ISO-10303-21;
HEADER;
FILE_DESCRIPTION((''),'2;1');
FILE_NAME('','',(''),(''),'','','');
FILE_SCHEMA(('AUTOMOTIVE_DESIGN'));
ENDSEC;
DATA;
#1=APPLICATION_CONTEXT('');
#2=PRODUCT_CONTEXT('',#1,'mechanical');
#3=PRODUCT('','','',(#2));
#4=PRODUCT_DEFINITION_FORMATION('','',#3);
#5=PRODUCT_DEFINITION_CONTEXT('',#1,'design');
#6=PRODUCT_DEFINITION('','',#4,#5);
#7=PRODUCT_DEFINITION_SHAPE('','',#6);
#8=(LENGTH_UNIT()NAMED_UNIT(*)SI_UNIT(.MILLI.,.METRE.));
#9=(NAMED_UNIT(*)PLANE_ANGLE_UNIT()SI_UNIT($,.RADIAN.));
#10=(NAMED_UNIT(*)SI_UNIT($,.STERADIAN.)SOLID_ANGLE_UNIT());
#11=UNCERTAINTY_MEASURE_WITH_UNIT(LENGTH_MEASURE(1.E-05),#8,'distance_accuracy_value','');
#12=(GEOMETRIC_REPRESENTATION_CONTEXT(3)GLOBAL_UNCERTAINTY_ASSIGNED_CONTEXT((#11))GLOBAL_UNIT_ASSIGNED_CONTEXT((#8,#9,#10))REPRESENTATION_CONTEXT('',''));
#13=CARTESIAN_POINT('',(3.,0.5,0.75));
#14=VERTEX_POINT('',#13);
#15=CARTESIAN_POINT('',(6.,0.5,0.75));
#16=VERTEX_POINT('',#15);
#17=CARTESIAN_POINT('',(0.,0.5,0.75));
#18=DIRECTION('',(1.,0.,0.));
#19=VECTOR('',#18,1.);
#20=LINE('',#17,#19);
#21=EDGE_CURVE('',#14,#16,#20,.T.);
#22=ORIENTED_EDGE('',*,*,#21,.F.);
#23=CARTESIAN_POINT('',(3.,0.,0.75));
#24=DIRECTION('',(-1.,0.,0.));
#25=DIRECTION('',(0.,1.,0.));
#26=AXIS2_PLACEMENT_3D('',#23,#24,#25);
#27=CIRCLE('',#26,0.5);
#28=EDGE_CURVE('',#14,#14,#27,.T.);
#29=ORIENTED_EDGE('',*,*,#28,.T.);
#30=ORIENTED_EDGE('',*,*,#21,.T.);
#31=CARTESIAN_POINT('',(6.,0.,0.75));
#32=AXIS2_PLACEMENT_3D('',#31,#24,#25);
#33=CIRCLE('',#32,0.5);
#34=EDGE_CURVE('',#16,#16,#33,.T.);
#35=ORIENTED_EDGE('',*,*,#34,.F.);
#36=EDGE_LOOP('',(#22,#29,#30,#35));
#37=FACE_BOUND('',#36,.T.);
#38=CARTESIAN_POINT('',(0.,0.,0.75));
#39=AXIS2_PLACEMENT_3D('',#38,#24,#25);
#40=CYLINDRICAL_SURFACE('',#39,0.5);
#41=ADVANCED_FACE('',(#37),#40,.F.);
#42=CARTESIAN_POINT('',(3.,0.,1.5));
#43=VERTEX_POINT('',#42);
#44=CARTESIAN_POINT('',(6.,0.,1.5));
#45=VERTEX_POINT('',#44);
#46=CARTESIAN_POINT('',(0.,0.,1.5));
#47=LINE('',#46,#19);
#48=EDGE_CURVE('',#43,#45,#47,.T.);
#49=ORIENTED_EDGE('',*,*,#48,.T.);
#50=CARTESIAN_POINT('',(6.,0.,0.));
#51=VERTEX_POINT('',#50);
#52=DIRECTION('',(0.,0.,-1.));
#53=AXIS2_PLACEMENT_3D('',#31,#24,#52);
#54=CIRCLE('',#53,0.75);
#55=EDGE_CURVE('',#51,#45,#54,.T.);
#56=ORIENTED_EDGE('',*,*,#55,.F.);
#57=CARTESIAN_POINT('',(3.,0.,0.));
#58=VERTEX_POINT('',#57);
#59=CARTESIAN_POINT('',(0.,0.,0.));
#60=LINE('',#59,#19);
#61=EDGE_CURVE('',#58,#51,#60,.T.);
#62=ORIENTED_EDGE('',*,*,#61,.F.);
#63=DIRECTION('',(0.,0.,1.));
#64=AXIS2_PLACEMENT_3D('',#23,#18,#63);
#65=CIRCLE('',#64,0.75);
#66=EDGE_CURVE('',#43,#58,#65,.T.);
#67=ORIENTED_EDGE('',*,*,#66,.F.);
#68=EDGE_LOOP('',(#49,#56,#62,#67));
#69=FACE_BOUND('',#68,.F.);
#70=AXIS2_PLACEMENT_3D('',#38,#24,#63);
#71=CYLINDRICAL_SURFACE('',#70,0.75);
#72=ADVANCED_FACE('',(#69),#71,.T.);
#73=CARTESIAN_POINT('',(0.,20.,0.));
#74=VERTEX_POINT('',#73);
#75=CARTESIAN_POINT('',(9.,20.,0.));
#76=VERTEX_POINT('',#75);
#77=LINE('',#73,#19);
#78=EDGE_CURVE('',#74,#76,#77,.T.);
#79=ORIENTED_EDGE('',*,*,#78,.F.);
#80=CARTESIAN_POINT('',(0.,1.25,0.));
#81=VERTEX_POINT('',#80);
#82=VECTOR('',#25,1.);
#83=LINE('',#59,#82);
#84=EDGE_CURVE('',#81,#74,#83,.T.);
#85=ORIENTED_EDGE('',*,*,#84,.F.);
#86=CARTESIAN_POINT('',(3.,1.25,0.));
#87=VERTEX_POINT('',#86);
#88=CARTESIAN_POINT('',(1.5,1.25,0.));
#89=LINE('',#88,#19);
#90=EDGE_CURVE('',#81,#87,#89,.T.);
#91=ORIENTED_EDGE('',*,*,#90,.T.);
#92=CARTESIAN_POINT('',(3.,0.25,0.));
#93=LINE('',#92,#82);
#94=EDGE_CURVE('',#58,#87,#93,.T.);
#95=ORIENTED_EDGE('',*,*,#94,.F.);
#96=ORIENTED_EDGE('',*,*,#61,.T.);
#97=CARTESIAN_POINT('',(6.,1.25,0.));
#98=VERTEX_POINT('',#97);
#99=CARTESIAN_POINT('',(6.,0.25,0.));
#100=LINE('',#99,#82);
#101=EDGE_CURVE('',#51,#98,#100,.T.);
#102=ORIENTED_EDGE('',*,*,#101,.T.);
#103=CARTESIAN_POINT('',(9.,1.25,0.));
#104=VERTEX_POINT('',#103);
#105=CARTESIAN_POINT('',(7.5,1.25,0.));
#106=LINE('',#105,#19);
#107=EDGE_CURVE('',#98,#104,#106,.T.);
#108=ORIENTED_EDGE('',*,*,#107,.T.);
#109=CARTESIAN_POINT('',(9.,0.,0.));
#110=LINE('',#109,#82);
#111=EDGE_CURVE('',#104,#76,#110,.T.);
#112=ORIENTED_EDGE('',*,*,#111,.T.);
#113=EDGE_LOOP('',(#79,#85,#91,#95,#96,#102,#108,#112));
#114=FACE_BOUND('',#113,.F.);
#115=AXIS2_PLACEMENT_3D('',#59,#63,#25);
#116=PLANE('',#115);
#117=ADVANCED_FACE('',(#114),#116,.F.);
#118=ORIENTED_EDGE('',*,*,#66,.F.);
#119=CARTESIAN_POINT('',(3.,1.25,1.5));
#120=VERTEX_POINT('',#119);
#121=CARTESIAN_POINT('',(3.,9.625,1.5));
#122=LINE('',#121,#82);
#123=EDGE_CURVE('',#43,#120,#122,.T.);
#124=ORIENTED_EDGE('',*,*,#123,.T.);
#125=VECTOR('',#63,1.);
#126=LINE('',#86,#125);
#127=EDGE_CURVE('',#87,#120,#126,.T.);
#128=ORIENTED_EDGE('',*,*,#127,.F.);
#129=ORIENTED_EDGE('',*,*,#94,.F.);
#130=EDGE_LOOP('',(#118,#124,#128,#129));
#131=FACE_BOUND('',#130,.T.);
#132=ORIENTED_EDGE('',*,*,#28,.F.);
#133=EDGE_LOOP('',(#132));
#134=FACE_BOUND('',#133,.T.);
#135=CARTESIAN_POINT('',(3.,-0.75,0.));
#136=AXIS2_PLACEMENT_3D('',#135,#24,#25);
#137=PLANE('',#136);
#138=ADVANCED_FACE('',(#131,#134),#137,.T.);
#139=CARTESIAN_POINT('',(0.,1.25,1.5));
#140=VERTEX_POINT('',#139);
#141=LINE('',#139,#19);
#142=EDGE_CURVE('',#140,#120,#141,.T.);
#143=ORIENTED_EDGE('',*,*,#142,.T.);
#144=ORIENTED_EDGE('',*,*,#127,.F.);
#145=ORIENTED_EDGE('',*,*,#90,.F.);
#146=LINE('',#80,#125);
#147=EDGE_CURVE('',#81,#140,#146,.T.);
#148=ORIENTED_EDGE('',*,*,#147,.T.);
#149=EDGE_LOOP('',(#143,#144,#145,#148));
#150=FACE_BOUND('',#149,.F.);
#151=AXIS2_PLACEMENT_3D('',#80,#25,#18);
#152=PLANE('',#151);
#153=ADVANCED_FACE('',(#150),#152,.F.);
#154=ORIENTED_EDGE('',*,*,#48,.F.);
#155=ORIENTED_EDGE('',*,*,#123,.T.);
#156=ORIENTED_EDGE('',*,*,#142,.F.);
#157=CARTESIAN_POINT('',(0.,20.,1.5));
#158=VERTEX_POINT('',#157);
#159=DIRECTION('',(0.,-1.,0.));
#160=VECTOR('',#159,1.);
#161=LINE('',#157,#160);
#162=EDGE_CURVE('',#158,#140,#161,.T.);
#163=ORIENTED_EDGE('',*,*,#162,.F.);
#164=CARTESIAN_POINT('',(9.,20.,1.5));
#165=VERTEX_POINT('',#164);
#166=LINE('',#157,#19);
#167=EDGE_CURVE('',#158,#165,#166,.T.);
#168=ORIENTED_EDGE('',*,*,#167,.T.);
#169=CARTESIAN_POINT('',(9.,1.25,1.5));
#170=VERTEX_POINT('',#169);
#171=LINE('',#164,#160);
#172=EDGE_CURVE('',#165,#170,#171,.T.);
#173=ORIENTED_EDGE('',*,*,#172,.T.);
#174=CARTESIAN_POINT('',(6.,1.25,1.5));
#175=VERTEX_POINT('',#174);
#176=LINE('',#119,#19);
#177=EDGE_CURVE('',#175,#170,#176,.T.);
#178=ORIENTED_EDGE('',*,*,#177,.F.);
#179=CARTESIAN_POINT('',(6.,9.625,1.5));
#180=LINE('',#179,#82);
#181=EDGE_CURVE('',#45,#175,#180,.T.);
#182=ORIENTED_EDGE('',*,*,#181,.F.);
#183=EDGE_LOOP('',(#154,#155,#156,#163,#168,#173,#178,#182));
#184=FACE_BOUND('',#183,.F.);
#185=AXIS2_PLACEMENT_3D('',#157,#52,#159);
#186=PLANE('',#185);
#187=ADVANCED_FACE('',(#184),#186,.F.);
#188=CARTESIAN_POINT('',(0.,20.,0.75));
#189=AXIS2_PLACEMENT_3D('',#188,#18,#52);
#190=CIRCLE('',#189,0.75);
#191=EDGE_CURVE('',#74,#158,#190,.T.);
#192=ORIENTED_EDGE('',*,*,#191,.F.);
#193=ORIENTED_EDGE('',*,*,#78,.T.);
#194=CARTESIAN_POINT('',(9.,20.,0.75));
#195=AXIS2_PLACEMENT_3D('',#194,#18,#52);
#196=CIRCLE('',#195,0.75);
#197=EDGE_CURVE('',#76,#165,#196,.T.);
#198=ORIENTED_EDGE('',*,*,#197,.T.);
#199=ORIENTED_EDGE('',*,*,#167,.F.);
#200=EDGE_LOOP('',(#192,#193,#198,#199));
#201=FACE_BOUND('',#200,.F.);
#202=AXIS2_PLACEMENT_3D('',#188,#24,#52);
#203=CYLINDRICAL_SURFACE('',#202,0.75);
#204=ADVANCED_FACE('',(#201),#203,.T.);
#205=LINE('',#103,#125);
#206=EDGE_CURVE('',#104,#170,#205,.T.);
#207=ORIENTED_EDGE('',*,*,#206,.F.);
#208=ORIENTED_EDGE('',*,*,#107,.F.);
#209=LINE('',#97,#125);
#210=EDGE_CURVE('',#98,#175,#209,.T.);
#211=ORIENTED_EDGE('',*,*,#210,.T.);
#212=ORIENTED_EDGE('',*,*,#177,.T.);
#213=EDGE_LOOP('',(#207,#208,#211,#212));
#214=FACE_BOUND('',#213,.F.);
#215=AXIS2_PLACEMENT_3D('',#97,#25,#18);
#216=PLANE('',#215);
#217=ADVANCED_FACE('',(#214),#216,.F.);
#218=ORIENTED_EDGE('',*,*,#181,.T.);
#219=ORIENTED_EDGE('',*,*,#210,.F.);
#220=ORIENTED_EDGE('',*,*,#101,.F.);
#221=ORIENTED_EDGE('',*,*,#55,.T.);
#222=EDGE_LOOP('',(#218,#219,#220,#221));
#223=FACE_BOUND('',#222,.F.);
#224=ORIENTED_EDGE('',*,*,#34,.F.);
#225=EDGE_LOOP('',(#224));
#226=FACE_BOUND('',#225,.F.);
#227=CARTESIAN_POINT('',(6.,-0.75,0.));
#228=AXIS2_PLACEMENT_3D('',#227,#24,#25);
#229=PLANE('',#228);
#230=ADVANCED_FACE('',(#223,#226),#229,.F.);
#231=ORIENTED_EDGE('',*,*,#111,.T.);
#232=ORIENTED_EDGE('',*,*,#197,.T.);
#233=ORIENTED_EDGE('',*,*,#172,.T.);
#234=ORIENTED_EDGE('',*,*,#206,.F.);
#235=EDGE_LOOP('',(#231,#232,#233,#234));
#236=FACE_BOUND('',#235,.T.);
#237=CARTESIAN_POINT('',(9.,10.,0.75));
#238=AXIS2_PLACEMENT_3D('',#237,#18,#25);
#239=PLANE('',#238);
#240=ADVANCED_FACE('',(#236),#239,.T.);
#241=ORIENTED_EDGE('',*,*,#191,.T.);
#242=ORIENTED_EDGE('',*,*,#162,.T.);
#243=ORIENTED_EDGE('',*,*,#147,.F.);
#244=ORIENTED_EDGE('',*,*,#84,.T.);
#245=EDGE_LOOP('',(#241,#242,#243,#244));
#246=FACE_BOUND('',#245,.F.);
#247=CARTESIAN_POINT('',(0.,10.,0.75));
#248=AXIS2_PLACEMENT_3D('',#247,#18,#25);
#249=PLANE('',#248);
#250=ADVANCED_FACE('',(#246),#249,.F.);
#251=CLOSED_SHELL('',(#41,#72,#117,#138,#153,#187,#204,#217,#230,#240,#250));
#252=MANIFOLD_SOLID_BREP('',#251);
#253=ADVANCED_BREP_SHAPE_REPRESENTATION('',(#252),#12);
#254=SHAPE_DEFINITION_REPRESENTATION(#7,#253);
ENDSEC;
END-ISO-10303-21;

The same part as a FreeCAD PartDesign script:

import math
import FreeCAD as App
import Part
import Sketcher

V = App.Vector

doc = App.newDocument("Part")
params = doc.addObject("Spreadsheet::Sheet", "Params")
for row, (alias, value) in enumerate([
    ("sketch1_diameter", "1 mm"),
    ("sketch1_width", "20 mm"),
    ("sketch1_radius", "0.75 mm"),
    ("pad1_length", "9 mm"),
    ("sketch2_width", "3 mm"),
    ("sketch2_height", "2 mm"),
], start=1):
    params.set(f"A{row}", alias)
    params.set(f"B{row}", "=" + value)
    params.setAlias(f"B{row}", alias)

body = doc.addObject("PartDesign::Body", "Body")

# Sketch on YZ plane
sketch1 = body.newObject("Sketcher::SketchObject", "Sketch")
sketch1.AttachmentSupport = (doc.getObject("YZ_Plane"), [""])
sketch1.MapMode = "FlatFace"
sketch1.addGeometry(Part.ArcOfCircle(Part.Circle(V(0, 0.8, 0), V(0, 0, 1), 0.8), math.radians(90), math.radians(270)), False)
sketch1.addGeometry(Part.LineSegment(V(0, 0, 0), V(20, 0, 0)), False)
sketch1.addGeometry(Part.ArcOfCircle(Part.Circle(V(20, 0.8, 0), V(0, 0, 1), 0.8), math.radians(-90), math.radians(90)), False)
sketch1.addGeometry(Part.LineSegment(V(20, 1.5, 0), V(0, 1.5, 0)), False)
sketch1.addGeometry(Part.Circle(V(0, 0.8, 0), V(0, 0, 1), 0.5), False)
sketch1.addConstraint(Sketcher.Constraint("Tangent", 0, 2, 1, 1))
sketch1.addConstraint(Sketcher.Constraint("Tangent", 1, 2, 2, 1))
sketch1.addConstraint(Sketcher.Constraint("Tangent", 2, 2, 3, 1))
sketch1.addConstraint(Sketcher.Constraint("Tangent", 3, 2, 0, 1))
sketch1.addConstraint(Sketcher.Constraint("Horizontal", 1))
sketch1.addConstraint(Sketcher.Constraint("Horizontal", 3))
sketch1.addConstraint(Sketcher.Constraint("Coincident", 0, 2, -1, 1))
sketch1.addConstraint(Sketcher.Constraint("Coincident", 4, 3, 0, 3))
sketch1.addConstraint(Sketcher.Constraint("Diameter", 4, 1.0))
sketch1.addConstraint(Sketcher.Constraint("DistanceX", 1, 1, 1, 2, 20.0))
sketch1.addConstraint(Sketcher.Constraint("Radius", 0, 0.75))
sketch1.setExpression("Constraints[8]", "Params.sketch1_diameter")
sketch1.setExpression("Constraints[9]", "Params.sketch1_width")
sketch1.setExpression("Constraints[10]", "Params.sketch1_radius")
pad1 = body.newObject("PartDesign::Pad", "Pad")
pad1.Profile = sketch1
pad1.setExpression("Length", "Params.pad1_length")

# Sketch on XY plane
sketch2 = body.newObject("Sketcher::SketchObject", "Sketch001")
sketch2.AttachmentSupport = (doc.getObject("XY_Plane"), [""])
sketch2.MapMode = "FlatFace"
sketch2.addGeometry(Part.LineSegment(V(0, 1.2, 0), V(0, -0.8, 0)), False)
sketch2.addGeometry(Part.LineSegment(V(0, -0.8, 0), V(3, -0.8, 0)), False)
sketch2.addGeometry(Part.LineSegment(V(3, -0.8, 0), V(3, 1.2, 0)), False)
sketch2.addGeometry(Part.LineSegment(V(3, 1.2, 0), V(0, 1.2, 0)), False)
sketch2.addGeometry(Part.LineSegment(V(6, 1.2, 0), V(6, -0.8, 0)), False)
sketch2.addGeometry(Part.LineSegment(V(6, -0.8, 0), V(9, -0.8, 0)), False)
sketch2.addGeometry(Part.LineSegment(V(9, -0.8, 0), V(9, 1.2, 0)), False)
sketch2.addGeometry(Part.LineSegment(V(9, 1.2, 0), V(6, 1.2, 0)), False)
sketch2.addConstraint(Sketcher.Constraint("Coincident", 0, 2, 1, 1))
sketch2.addConstraint(Sketcher.Constraint("Coincident", 1, 2, 2, 1))
sketch2.addConstraint(Sketcher.Constraint("Coincident", 2, 2, 3, 1))
sketch2.addConstraint(Sketcher.Constraint("Coincident", 3, 2, 0, 1))
sketch2.addConstraint(Sketcher.Constraint("Coincident", 4, 2, 5, 1))
sketch2.addConstraint(Sketcher.Constraint("Coincident", 5, 2, 6, 1))
sketch2.addConstraint(Sketcher.Constraint("Coincident", 6, 2, 7, 1))
sketch2.addConstraint(Sketcher.Constraint("Coincident", 7, 2, 4, 1))
sketch2.addConstraint(Sketcher.Constraint("Vertical", 0))
sketch2.addConstraint(Sketcher.Constraint("Horizontal", 1))
sketch2.addConstraint(Sketcher.Constraint("Vertical", 2))
sketch2.addConstraint(Sketcher.Constraint("Horizontal", 3))
sketch2.addConstraint(Sketcher.Constraint("Vertical", 4))
sketch2.addConstraint(Sketcher.Constraint("Horizontal", 5))
sketch2.addConstraint(Sketcher.Constraint("Vertical", 6))
sketch2.addConstraint(Sketcher.Constraint("Horizontal", 7))
sketch2.addConstraint(Sketcher.Constraint("PointOnObject", 0, 2, -2))
sketch2.addConstraint(Sketcher.Constraint("Horizontal", 1, 2, 4, 2))
sketch2.addConstraint(Sketcher.Constraint("Horizontal", 3, 2, 6, 2))
sketch2.addConstraint(Sketcher.Constraint("Equal", 3, 5))
sketch2.addConstraint(Sketcher.Constraint("DistanceX", 1, 1, 1, 2, 3.0))
sketch2.addConstraint(Sketcher.Constraint("DistanceY", 0, 2, 0, 1, 2.0))
sketch2.addConstraint(Sketcher.Constraint("DistanceX", -1, 1, 4, 2, 6.0))
sketch2.addConstraint(Sketcher.Constraint("DistanceY", 0, 2, -1, 1, 0.75))
sketch2.setExpression("Constraints[20]", "Params.sketch2_width")
sketch2.setExpression("Constraints[21]", "Params.sketch2_height")
pocket1 = body.newObject("PartDesign::Pocket", "Pocket")
pocket1.Profile = sketch2
pocket1.Type = "ThroughAll"
pocket1.Reversed = True

doc.recompute()
